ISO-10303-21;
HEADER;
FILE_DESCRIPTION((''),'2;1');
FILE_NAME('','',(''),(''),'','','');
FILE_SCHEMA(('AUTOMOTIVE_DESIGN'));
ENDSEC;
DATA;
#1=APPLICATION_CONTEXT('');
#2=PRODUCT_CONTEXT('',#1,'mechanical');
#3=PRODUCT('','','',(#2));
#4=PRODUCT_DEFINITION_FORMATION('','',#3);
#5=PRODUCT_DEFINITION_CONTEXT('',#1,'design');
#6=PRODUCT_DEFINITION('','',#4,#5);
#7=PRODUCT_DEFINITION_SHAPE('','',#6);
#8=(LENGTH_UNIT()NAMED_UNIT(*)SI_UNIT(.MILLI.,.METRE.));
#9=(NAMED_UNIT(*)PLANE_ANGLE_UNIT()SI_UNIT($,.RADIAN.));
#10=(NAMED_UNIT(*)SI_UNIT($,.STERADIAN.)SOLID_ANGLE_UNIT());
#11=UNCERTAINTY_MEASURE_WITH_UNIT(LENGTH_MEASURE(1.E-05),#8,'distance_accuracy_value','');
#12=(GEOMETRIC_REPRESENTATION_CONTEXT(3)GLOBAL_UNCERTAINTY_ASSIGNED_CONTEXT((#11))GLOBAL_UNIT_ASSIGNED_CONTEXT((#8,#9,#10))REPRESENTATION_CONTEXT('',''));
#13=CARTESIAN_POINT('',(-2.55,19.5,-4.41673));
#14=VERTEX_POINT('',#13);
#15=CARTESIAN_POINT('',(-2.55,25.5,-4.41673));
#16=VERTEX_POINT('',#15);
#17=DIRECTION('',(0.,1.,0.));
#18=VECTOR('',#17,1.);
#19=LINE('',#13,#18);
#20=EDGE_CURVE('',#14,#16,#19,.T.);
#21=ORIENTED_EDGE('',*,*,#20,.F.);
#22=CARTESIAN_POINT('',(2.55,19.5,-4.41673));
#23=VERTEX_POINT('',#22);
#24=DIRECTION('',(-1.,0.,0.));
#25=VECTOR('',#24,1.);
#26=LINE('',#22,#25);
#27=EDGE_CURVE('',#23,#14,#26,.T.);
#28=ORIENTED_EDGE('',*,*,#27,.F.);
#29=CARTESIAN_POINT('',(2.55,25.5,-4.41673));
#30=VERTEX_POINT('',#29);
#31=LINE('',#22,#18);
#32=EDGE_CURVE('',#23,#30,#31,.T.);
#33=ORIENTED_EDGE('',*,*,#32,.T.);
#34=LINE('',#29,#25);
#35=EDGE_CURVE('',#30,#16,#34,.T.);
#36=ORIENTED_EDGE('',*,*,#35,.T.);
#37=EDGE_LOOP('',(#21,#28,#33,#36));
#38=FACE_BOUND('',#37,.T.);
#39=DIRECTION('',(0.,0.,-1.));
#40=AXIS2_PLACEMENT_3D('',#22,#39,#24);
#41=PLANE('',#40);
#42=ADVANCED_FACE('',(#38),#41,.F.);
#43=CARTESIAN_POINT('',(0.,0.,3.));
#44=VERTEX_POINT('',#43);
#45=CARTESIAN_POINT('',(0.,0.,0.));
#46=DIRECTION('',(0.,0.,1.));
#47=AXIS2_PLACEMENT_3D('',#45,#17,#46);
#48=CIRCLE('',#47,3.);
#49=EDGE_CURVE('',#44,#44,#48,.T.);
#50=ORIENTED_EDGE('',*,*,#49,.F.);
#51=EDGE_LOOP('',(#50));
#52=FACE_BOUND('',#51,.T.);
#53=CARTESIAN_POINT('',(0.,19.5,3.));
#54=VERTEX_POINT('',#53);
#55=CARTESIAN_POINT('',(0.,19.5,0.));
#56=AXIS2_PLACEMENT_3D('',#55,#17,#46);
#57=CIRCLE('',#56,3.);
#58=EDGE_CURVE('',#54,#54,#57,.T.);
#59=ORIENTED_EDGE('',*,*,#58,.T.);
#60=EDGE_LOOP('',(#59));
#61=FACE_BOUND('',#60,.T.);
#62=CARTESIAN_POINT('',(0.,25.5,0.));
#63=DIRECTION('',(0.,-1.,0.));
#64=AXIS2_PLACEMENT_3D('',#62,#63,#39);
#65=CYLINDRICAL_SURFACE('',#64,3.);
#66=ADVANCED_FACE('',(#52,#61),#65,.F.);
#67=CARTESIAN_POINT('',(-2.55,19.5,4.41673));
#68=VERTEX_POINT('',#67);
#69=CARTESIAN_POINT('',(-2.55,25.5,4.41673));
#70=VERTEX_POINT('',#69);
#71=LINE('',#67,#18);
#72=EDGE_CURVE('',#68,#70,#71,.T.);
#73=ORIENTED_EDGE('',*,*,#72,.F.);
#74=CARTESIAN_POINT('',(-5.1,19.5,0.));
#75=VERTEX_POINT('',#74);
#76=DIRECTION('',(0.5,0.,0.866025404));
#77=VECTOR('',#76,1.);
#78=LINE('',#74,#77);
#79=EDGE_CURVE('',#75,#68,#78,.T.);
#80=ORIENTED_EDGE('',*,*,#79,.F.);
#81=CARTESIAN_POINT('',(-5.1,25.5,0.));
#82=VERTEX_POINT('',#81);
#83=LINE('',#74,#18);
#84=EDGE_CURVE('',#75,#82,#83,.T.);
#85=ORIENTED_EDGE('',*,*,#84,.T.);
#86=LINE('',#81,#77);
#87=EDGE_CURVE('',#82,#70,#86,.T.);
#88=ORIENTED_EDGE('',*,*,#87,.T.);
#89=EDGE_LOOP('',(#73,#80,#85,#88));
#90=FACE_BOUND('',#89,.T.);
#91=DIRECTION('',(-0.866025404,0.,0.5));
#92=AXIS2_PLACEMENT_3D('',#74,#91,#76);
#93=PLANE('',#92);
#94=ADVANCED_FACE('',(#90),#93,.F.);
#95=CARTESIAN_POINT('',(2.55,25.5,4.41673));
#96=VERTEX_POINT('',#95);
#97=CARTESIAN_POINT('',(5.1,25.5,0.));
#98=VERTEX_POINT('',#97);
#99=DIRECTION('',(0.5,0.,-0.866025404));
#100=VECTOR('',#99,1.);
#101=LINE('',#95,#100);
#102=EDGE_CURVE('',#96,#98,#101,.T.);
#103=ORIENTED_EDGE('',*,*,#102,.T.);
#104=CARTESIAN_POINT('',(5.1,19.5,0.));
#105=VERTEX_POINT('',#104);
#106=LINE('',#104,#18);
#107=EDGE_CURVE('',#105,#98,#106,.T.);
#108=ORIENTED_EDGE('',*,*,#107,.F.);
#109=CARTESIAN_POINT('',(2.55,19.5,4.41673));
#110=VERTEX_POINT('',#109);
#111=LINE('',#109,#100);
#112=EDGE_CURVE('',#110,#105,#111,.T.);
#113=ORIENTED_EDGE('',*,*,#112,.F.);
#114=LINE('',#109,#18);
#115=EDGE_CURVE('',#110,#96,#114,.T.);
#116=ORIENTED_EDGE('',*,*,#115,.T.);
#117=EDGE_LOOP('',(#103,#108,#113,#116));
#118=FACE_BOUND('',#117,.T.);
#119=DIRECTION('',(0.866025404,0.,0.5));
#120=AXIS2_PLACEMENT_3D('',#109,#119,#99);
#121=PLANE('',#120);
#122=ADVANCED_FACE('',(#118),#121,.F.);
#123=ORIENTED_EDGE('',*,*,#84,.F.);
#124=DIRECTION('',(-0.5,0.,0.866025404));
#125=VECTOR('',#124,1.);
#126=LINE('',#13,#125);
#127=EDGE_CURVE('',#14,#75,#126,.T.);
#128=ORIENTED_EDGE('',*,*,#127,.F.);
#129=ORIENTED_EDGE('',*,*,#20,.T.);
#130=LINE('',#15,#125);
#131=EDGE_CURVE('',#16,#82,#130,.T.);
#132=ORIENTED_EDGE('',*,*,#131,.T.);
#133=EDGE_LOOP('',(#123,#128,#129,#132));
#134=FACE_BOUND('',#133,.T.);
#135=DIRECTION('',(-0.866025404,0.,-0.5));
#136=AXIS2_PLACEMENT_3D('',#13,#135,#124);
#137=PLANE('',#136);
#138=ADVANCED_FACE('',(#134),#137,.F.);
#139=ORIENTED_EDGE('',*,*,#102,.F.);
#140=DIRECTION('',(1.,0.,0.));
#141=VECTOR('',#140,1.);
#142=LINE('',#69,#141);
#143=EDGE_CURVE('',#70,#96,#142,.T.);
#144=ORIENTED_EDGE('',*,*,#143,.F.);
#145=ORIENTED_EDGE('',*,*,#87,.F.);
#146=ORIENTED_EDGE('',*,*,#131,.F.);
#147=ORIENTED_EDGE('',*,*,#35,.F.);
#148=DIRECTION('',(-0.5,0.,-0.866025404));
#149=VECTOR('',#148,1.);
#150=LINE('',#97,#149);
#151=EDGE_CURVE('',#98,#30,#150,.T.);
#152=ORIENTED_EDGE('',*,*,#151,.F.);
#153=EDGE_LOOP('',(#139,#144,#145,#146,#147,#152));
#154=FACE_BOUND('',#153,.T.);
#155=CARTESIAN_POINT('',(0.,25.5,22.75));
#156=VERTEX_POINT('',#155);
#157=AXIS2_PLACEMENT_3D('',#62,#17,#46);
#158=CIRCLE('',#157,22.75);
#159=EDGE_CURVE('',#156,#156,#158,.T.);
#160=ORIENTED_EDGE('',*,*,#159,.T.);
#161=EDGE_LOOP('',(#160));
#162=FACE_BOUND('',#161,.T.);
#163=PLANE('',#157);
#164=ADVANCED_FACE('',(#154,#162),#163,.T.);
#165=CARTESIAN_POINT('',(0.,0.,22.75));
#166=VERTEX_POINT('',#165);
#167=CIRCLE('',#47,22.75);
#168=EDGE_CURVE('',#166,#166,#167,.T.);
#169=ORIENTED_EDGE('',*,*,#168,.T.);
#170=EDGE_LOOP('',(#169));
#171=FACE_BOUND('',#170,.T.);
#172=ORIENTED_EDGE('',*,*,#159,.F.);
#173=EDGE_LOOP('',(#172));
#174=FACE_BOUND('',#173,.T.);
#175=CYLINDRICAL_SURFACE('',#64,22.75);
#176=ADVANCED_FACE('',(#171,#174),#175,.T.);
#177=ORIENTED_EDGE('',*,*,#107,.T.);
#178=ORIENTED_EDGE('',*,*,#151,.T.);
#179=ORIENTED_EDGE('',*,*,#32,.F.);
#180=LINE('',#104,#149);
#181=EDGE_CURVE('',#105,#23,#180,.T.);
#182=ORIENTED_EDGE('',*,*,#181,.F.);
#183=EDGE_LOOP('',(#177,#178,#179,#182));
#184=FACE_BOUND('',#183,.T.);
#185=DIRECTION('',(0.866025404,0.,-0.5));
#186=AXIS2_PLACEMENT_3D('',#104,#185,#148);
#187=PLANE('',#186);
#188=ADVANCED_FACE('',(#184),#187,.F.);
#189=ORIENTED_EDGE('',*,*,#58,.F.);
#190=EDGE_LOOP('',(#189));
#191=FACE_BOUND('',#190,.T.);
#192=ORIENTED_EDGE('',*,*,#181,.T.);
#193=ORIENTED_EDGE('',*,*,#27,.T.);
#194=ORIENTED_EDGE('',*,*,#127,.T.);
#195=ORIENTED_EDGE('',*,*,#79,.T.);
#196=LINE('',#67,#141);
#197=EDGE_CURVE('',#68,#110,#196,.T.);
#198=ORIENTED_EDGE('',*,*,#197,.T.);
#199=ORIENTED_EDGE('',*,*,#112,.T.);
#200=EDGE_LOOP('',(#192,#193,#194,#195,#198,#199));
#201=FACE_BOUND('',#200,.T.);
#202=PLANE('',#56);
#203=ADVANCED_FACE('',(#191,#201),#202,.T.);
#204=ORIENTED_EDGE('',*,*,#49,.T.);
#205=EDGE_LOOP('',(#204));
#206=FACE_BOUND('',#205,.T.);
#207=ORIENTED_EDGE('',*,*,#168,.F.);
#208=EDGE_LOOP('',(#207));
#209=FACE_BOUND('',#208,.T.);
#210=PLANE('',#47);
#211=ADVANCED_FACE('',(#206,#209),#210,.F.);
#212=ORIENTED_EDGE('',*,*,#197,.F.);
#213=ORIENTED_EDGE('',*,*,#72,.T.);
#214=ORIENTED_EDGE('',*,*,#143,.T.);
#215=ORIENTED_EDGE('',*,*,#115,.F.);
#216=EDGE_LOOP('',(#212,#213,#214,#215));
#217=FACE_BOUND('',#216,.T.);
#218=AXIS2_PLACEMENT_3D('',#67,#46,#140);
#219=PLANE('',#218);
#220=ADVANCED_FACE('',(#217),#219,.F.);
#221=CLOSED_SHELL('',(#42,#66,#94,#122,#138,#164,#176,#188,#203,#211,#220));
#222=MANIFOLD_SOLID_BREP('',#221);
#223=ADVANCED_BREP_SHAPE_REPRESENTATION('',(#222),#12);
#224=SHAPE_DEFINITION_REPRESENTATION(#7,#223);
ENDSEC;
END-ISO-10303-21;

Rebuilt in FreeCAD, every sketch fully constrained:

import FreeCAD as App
import Part
import Sketcher

V = App.Vector
Q = App.Units.Quantity


def add_polygon(sketch, points):
    """Adds a closed chain of lines whose ends are joined by coincident constraints."""
    first, n = sketch.GeometryCount, len(points)
    for a, b in zip(points, points[1:] + points[:1]):
        sketch.addGeometry(Part.LineSegment(App.Vector(*a, 0), App.Vector(*b, 0)), False)
    for i in range(n):
        sketch.addConstraint(Sketcher.Constraint("Coincident", first + i, 2, first + (i + 1) % n, 1))

doc = App.newDocument("Part")
body = doc.addObject("PartDesign::Body", "Body")

sketch1 = body.newObject("Sketcher::SketchObject", "Sketch")
sketch1.AttachmentSupport = (doc.getObject("XZ_Plane"), [""])
sketch1.MapMode = "FlatFace"
sketch1.addGeometry([
    Part.Circle(V(0, 0, 0), V(0, 0, 1), 22.75),
    Part.Circle(V(0, 0, 0), V(0, 0, 1), 3),
], False)
sketch1.addConstraint([
    Sketcher.Constraint("Coincident", 0, 3, -1, 1),
    Sketcher.Constraint("Coincident", 1, 3, -1, 1),
    Sketcher.Constraint("Diameter", 1, Q("6 mm")),
    Sketcher.Constraint("Diameter", 0, Q("45.5 mm")),
])
pad1 = body.newObject("PartDesign::Pad", "Pad")
pad1.Profile = sketch1
pad1.Length = 25.5
pad1.Reversed = True

sketch2 = body.newObject("Sketcher::SketchObject", "Sketch001")
sketch2.AttachmentSupport = (doc.getObject("XZ_Plane"), [""])
sketch2.MapMode = "FlatFace"
sketch2.AttachmentOffset = App.Placement(V(0, 0, -25.5), App.Rotation())
add_polygon(sketch2, [(5.1, 0), (2.55, -4.41673), (-2.55, -4.41673), (-5.1, 0), (-2.55, 4.41673), (2.55, 4.41673)])
sketch2.addConstraint([
    Sketcher.Constraint("Horizontal", 1),
    Sketcher.Constraint("Horizontal", 4),
    Sketcher.Constraint("Symmetric", 0, 2, 3, 2, -1, 1),
    Sketcher.Constraint("Symmetric", 2, 2, 5, 2, -1, 1),
    Sketcher.Constraint("PointOnObject", 2, 2, -1),
    Sketcher.Constraint("Parallel", 2, 5),
    Sketcher.Constraint("Vertical", 1, 2, 3, 2),
    Sketcher.Constraint("Angle", 0, Q("-120 deg")),
    Sketcher.Constraint("DistanceX", 1, 2, 1, 1, Q("5.1 mm")),
    Sketcher.Constraint("Distance", 0, Q("5.1 mm")),
])
pocket1 = body.newObject("PartDesign::Pocket", "Pocket")
pocket1.Profile = sketch2
pocket1.Length = 6
pocket1.Reversed = True

doc.recompute()
